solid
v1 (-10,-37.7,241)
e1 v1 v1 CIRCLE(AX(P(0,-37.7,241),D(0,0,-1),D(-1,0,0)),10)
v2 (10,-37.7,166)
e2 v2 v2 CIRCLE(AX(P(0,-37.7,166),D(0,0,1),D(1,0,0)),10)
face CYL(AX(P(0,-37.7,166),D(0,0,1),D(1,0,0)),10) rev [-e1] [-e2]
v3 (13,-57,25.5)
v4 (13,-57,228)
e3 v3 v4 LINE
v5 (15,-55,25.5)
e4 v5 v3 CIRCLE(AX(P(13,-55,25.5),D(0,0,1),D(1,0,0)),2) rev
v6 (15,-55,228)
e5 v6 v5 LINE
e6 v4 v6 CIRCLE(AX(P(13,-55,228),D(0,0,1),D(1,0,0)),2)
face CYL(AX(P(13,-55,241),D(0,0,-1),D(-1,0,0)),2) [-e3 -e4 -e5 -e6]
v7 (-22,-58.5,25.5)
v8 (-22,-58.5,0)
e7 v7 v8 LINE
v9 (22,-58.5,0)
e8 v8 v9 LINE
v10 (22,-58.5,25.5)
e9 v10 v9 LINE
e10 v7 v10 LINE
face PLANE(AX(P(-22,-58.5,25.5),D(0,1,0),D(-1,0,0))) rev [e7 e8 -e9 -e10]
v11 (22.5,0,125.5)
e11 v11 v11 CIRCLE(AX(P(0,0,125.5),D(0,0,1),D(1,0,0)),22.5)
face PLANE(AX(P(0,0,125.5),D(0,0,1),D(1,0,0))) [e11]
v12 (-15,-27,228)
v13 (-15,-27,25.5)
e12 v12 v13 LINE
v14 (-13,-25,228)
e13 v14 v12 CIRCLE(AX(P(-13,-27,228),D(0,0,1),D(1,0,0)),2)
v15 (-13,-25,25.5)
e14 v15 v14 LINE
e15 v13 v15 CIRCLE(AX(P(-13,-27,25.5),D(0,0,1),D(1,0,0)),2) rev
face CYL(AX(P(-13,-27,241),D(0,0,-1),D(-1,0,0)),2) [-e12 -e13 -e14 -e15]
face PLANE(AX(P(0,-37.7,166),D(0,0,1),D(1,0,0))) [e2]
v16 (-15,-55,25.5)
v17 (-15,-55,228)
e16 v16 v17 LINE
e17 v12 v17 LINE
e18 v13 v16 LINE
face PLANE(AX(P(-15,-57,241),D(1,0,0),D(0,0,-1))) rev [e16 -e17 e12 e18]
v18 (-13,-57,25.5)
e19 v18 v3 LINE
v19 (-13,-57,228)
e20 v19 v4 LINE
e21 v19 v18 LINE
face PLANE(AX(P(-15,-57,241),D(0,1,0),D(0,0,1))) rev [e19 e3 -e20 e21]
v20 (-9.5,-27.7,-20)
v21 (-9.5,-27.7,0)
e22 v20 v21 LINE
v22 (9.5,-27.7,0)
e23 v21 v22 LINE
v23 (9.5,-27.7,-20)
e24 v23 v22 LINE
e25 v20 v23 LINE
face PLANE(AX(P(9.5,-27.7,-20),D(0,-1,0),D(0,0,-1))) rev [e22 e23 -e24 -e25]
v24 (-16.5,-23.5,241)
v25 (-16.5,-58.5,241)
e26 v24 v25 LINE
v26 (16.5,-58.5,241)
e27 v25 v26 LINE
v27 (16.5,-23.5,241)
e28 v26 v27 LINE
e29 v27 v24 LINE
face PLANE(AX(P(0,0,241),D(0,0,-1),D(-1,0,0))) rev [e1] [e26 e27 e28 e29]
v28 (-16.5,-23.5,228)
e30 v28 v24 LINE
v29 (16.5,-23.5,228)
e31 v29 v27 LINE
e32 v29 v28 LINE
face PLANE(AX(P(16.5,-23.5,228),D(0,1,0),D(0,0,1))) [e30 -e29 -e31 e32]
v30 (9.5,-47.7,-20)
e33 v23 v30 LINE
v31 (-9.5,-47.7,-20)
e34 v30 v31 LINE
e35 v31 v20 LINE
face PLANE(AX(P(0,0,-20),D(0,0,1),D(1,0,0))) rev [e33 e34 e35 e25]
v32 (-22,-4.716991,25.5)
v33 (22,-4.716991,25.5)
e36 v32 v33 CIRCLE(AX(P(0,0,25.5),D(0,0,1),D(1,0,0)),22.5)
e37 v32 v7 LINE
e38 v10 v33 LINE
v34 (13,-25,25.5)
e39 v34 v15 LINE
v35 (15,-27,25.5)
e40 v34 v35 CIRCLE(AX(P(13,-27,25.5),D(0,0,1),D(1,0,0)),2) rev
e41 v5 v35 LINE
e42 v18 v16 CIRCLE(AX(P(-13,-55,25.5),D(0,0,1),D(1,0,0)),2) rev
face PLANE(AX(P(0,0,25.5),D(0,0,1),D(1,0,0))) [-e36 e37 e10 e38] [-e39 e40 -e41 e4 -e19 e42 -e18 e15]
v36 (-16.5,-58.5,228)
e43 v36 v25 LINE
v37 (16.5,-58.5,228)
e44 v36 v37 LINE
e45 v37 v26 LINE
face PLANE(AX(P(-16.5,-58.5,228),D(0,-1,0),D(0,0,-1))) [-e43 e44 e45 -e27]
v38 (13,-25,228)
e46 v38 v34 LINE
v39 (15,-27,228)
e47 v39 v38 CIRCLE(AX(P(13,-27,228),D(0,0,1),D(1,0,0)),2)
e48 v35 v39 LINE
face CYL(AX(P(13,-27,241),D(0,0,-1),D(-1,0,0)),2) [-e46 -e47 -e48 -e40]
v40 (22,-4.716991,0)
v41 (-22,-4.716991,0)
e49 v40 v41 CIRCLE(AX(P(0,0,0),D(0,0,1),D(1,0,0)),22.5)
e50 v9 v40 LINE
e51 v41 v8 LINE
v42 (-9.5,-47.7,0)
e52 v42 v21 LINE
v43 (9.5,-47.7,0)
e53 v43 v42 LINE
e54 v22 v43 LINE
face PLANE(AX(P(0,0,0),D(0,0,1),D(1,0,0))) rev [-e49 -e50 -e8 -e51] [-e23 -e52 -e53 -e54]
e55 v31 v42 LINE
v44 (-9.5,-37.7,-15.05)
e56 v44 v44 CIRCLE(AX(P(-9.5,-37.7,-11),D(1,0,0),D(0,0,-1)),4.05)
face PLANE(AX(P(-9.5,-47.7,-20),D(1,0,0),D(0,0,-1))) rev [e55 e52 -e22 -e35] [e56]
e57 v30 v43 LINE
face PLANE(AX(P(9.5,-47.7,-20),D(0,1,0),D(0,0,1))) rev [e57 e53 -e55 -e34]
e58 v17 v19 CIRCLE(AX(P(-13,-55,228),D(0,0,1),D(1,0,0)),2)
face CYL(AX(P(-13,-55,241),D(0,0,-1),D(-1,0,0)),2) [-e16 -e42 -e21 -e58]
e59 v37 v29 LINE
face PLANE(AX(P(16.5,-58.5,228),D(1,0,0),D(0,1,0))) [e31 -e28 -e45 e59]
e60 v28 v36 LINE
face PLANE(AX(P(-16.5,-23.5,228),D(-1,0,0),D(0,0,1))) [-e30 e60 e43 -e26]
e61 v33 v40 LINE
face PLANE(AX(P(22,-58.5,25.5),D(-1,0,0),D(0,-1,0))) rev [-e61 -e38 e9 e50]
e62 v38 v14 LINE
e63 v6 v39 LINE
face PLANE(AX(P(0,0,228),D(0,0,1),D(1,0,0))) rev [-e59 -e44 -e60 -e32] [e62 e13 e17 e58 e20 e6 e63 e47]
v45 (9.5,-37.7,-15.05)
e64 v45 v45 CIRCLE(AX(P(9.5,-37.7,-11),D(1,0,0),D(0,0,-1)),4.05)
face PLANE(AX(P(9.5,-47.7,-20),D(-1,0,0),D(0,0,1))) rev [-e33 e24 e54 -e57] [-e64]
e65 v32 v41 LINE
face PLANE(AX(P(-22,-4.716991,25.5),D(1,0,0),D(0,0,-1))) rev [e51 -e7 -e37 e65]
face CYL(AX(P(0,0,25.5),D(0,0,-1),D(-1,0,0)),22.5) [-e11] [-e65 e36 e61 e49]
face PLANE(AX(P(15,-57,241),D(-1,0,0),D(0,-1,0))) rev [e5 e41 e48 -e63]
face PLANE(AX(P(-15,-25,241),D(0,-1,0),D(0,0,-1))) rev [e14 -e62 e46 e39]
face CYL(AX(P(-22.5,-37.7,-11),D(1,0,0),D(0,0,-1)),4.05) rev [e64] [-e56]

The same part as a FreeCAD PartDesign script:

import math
import FreeCAD as App
import Part
import Sketcher
from FreeCAD import Vector
Q = App.Units.Quantity


def edges_at(feature, points):
    """Names of the edges that pass closest to the given points."""
    edges = feature.Shape.Edges
    near = lambda p: min(range(len(edges)), key=lambda i: edges[i].distToShape(Part.Vertex(*p))[0])
    return sorted({f"Edge{near(p) + 1}" for p in points})


def add_polygon(sketch, points):
    """Adds a closed chain of lines whose ends are joined by coincident constraints."""
    first, n = sketch.GeometryCount, len(points)
    for a, b in zip(points, points[1:] + points[:1]):
        sketch.addGeometry(Part.LineSegment(App.Vector(*a, 0), App.Vector(*b, 0)), False)
    for i in range(n):
        sketch.addConstraint(Sketcher.Constraint("Coincident", first + i, 2, first + (i + 1) % n, 1))

doc = App.newDocument("Part")
body = doc.addObject("PartDesign::Body", "Body")

sketch1 = body.newObject("Sketcher::SketchObject", "Sketch")
sketch1.AttachmentSupport = (doc.getObject("XY_Plane"), [""])
sketch1.MapMode = "FlatFace"
sketch1.addGeometry([
    Part.LineSegment(Vector(-22, -4.716991, 0), Vector(-22, -58.5, 0)),
    Part.LineSegment(Vector(-22, -58.5, 0), Vector(22, -58.5, 0)),
    Part.LineSegment(Vector(22, -58.5, 0), Vector(22, -4.716991, 0)),
    Part.ArcOfCircle(Part.Circle(Vector(0, 0, 0), Vector(0, 0, 1), 22.5), math.radians(-12.101492), math.radians(192.101492)),
], False)
sketch1.addConstraint([
    Sketcher.Constraint("Coincident", 0, 2, 1, 1),
    Sketcher.Constraint("Coincident", 1, 2, 2, 1),
    Sketcher.Constraint("Coincident", 2, 2, 3, 1),
    Sketcher.Constraint("Coincident", 3, 2, 0, 1),
    Sketcher.Constraint("Vertical", 0),
    Sketcher.Constraint("Horizontal", 1),
    Sketcher.Constraint("Vertical", 2),
    Sketcher.Constraint("Coincident", 3, 3, -1, 1),
    Sketcher.Constraint("Horizontal", 2, 2, 3, 2),
    Sketcher.Constraint("Radius", 3, Q("22.5 mm")),
    Sketcher.Constraint("DistanceX", 1, 1, 1, 2, Q("44 mm")),
    Sketcher.Constraint("DistanceY", 0, 2, -1, 1, Q("58.5 mm")),
])
pad1 = body.newObject("PartDesign::Pad", "Pad")
pad1.Profile = sketch1
pad1.Length = 25.5

sketch2 = body.newObject("Sketcher::SketchObject", "Sketch001")
sketch2.AttachmentSupport = (doc.getObject("XY_Plane"), [""])
sketch2.MapMode = "FlatFace"
sketch2.AttachmentOffset = App.Placement(Vector(0, 0, 25.5), App.Rotation())
sketch2.addGeometry(Part.Circle(Vector(0, 0, 0), Vector(0, 0, 1), 22.5), False)
sketch2.addConstraint([
    Sketcher.Constraint("Coincident", 0, 3, -1, 1),
    Sketcher.Constraint("Diameter", 0, Q("45 mm")),
])
pad2 = body.newObject("PartDesign::Pad", "Pad001")
pad2.Profile = sketch2
pad2.Length = 100

sketch3 = body.newObject("Sketcher::SketchObject", "Sketch002")
sketch3.AttachmentSupport = (doc.getObject("XY_Plane"), [""])
sketch3.MapMode = "FlatFace"
sketch3.AttachmentOffset = App.Placement(Vector(0, 0, 25.5), App.Rotation())
add_polygon(sketch3, [(-15, -25), (-15, -57), (15, -57), (15, -25)])
sketch3.addConstraint([
    Sketcher.Constraint("Vertical", 0),
    Sketcher.Constraint("Horizontal", 1),
    Sketcher.Constraint("Vertical", 2),
    Sketcher.Constraint("Horizontal", 3),
    Sketcher.Constraint("DistanceX", 1, 1, 1, 2, Q("30 mm")),
    Sketcher.Constraint("DistanceY", 0, 2, 0, 1, Q("32 mm")),
    Sketcher.Constraint("DistanceX", 0, 2, -1, 1, Q("15 mm")),
    Sketcher.Constraint("DistanceY", 0, 2, -1, 1, Q("57 mm")),
])
pad3 = body.newObject("PartDesign::Pad", "Pad002")
pad3.Profile = sketch3
pad3.Length = 215.5

sketch4 = body.newObject("Sketcher::SketchObject", "Sketch003")
sketch4.AttachmentSupport = (doc.getObject("XY_Plane"), [""])
sketch4.MapMode = "FlatFace"
add_polygon(sketch4, [(9.5, -27.7), (9.5, -47.7), (-9.5, -47.7), (-9.5, -27.7)])
sketch4.addConstraint([
    Sketcher.Constraint("Vertical", 0),
    Sketcher.Constraint("Horizontal", 1),
    Sketcher.Constraint("Vertical", 2),
    Sketcher.Constraint("Horizontal", 3),
    Sketcher.Constraint("DistanceX", 1, 2, 1, 1, Q("19 mm")),
    Sketcher.Constraint("DistanceY", 0, 2, 0, 1, Q("20 mm")),
    Sketcher.Constraint("DistanceX", -1, 1, 0, 2, Q("9.5 mm")),
    Sketcher.Constraint("DistanceY", 0, 2, -1, 1, Q("47.7 mm")),
])
pad4 = body.newObject("PartDesign::Pad", "Pad003")
pad4.Profile = sketch4
pad4.Length = 20
pad4.Reversed = True

sketch5 = body.newObject("Sketcher::SketchObject", "Sketch004")
sketch5.AttachmentSupport = (doc.getObject("YZ_Plane"), [""])
sketch5.MapMode = "FlatFace"
sketch5.AttachmentOffset = App.Placement(Vector(0, 0, 9.5), App.Rotation())
sketch5.addGeometry(Part.Circle(Vector(-37.7, -11, 0), Vector(0, 0, 1), 4.05), False)
sketch5.addConstraint([
    Sketcher.Constraint("Diameter", 0, Q("8.1 mm")),
    Sketcher.Constraint("DistanceY", 0, 3, -1, 1, Q("11 mm")),
    Sketcher.Constraint("DistanceX", 0, 3, -1, 1, Q("37.7 mm")),
])
pocket1 = body.newObject("PartDesign::Pocket", "Pocket")
pocket1.Profile = sketch5
pocket1.Type = "ThroughAll"

sketch6 = body.newObject("Sketcher::SketchObject", "Sketch005")
sketch6.AttachmentSupport = (doc.getObject("XY_Plane"), [""])
sketch6.MapMode = "FlatFace"
sketch6.AttachmentOffset = App.Placement(Vector(0, 0, 241), App.Rotation())
sketch6.addGeometry(Part.Circle(Vector(0, -37.7, 0), Vector(0, 0, 1), 10), False)
sketch6.addConstraint([
    Sketcher.Constraint("PointOnObject", 0, 3, -2),
    Sketcher.Constraint("Diameter", 0, Q("20 mm")),
    Sketcher.Constraint("DistanceY", 0, 3, -1, 1, Q("37.7 mm")),
])
pad5 = body.newObject("PartDesign::Pad", "Pad004")
pad5.Profile = sketch6
pad5.Length = 25

sketch7 = body.newObject("Sketcher::SketchObject", "Sketch006")
sketch7.AttachmentSupport = (doc.getObject("XY_Plane"), [""])
sketch7.MapMode = "FlatFace"
sketch7.AttachmentOffset = App.Placement(Vector(0, 0, 241), App.Rotation())
add_polygon(sketch7, [(-16.5, -23.5), (-16.5, -58.5), (16.5, -58.5), (16.5, -23.5)])
sketch7.addConstraint([
    Sketcher.Constraint("Vertical", 0),
    Sketcher.Constraint("Horizontal", 1),
    Sketcher.Constraint("Vertical", 2),
    Sketcher.Constraint("Horizontal", 3),
    Sketcher.Constraint("DistanceX", 1, 1, 1, 2, Q("33 mm")),
    Sketcher.Constraint("DistanceY", 0, 2, 0, 1, Q("35 mm")),
    Sketcher.Constraint("DistanceX", 0, 2, -1, 1, Q("16.5 mm")),
    Sketcher.Constraint("DistanceY", 0, 2, -1, 1, Q("58.5 mm")),
])
pad6 = body.newObject("PartDesign::Pad", "Pad005")
pad6.Profile = sketch7
pad6.Length = 13
pad6.Reversed = True

sketch8 = body.newObject("Sketcher::SketchObject", "Sketch007")
sketch8.AttachmentSupport = (doc.getObject("YZ_Plane"), [""])
sketch8.MapMode = "FlatFace"
sketch8.addGeometry(Part.Circle(Vector(-37.7, 256, 0), Vector(0, 0, 1), 4.05), False)
sketch8.addConstraint([
    Sketcher.Constraint("Diameter", 0, Q("8.1 mm")),
    Sketcher.Constraint("DistanceY", -1, 1, 0, 3, Q("256 mm")),
    Sketcher.Constraint("DistanceX", 0, 3, -1, 1, Q("37.7 mm")),
])
pocket2 = body.newObject("PartDesign::Pocket", "Pocket001")
pocket2.Profile = sketch8
pocket2.Type = "ThroughAll"
pocket2.Midplane = True
doc.recompute()

fillet = body.newObject("PartDesign::Fillet", "Fillet")
fillet.Base = (pocket2, edges_at(pocket2, [
    (15, -57, 126.75),
    (-15, -57, 126.75),
    (-15, -25, 126.75),
    (15, -25, 126.75),
]))
fillet.Radius = 2

sketch9 = body.newObject("Sketcher::SketchObject", "Sketch008")
sketch9.AttachmentSupport = (doc.getObject("XY_Plane"), [""])
sketch9.MapMode = "FlatFace"
sketch9.AttachmentOffset = App.Placement(Vector(0, 0, 166), App.Rotation())
sketch9.addGeometry(Part.Circle(Vector(0, -37.7, 0), Vector(0, 0, 1), 10), False)
sketch9.addConstraint([
    Sketcher.Constraint("PointOnObject", 0, 3, -2),
    Sketcher.Constraint("Diameter", 0, Q("20 mm")),
    Sketcher.Constraint("DistanceY", 0, 3, -1, 1, Q("37.7 mm")),
])
pocket3 = body.newObject("PartDesign::Pocket", "Pocket002")
pocket3.Profile = sketch9
pocket3.Length = 100
pocket3.Reversed = True

doc.recompute()
